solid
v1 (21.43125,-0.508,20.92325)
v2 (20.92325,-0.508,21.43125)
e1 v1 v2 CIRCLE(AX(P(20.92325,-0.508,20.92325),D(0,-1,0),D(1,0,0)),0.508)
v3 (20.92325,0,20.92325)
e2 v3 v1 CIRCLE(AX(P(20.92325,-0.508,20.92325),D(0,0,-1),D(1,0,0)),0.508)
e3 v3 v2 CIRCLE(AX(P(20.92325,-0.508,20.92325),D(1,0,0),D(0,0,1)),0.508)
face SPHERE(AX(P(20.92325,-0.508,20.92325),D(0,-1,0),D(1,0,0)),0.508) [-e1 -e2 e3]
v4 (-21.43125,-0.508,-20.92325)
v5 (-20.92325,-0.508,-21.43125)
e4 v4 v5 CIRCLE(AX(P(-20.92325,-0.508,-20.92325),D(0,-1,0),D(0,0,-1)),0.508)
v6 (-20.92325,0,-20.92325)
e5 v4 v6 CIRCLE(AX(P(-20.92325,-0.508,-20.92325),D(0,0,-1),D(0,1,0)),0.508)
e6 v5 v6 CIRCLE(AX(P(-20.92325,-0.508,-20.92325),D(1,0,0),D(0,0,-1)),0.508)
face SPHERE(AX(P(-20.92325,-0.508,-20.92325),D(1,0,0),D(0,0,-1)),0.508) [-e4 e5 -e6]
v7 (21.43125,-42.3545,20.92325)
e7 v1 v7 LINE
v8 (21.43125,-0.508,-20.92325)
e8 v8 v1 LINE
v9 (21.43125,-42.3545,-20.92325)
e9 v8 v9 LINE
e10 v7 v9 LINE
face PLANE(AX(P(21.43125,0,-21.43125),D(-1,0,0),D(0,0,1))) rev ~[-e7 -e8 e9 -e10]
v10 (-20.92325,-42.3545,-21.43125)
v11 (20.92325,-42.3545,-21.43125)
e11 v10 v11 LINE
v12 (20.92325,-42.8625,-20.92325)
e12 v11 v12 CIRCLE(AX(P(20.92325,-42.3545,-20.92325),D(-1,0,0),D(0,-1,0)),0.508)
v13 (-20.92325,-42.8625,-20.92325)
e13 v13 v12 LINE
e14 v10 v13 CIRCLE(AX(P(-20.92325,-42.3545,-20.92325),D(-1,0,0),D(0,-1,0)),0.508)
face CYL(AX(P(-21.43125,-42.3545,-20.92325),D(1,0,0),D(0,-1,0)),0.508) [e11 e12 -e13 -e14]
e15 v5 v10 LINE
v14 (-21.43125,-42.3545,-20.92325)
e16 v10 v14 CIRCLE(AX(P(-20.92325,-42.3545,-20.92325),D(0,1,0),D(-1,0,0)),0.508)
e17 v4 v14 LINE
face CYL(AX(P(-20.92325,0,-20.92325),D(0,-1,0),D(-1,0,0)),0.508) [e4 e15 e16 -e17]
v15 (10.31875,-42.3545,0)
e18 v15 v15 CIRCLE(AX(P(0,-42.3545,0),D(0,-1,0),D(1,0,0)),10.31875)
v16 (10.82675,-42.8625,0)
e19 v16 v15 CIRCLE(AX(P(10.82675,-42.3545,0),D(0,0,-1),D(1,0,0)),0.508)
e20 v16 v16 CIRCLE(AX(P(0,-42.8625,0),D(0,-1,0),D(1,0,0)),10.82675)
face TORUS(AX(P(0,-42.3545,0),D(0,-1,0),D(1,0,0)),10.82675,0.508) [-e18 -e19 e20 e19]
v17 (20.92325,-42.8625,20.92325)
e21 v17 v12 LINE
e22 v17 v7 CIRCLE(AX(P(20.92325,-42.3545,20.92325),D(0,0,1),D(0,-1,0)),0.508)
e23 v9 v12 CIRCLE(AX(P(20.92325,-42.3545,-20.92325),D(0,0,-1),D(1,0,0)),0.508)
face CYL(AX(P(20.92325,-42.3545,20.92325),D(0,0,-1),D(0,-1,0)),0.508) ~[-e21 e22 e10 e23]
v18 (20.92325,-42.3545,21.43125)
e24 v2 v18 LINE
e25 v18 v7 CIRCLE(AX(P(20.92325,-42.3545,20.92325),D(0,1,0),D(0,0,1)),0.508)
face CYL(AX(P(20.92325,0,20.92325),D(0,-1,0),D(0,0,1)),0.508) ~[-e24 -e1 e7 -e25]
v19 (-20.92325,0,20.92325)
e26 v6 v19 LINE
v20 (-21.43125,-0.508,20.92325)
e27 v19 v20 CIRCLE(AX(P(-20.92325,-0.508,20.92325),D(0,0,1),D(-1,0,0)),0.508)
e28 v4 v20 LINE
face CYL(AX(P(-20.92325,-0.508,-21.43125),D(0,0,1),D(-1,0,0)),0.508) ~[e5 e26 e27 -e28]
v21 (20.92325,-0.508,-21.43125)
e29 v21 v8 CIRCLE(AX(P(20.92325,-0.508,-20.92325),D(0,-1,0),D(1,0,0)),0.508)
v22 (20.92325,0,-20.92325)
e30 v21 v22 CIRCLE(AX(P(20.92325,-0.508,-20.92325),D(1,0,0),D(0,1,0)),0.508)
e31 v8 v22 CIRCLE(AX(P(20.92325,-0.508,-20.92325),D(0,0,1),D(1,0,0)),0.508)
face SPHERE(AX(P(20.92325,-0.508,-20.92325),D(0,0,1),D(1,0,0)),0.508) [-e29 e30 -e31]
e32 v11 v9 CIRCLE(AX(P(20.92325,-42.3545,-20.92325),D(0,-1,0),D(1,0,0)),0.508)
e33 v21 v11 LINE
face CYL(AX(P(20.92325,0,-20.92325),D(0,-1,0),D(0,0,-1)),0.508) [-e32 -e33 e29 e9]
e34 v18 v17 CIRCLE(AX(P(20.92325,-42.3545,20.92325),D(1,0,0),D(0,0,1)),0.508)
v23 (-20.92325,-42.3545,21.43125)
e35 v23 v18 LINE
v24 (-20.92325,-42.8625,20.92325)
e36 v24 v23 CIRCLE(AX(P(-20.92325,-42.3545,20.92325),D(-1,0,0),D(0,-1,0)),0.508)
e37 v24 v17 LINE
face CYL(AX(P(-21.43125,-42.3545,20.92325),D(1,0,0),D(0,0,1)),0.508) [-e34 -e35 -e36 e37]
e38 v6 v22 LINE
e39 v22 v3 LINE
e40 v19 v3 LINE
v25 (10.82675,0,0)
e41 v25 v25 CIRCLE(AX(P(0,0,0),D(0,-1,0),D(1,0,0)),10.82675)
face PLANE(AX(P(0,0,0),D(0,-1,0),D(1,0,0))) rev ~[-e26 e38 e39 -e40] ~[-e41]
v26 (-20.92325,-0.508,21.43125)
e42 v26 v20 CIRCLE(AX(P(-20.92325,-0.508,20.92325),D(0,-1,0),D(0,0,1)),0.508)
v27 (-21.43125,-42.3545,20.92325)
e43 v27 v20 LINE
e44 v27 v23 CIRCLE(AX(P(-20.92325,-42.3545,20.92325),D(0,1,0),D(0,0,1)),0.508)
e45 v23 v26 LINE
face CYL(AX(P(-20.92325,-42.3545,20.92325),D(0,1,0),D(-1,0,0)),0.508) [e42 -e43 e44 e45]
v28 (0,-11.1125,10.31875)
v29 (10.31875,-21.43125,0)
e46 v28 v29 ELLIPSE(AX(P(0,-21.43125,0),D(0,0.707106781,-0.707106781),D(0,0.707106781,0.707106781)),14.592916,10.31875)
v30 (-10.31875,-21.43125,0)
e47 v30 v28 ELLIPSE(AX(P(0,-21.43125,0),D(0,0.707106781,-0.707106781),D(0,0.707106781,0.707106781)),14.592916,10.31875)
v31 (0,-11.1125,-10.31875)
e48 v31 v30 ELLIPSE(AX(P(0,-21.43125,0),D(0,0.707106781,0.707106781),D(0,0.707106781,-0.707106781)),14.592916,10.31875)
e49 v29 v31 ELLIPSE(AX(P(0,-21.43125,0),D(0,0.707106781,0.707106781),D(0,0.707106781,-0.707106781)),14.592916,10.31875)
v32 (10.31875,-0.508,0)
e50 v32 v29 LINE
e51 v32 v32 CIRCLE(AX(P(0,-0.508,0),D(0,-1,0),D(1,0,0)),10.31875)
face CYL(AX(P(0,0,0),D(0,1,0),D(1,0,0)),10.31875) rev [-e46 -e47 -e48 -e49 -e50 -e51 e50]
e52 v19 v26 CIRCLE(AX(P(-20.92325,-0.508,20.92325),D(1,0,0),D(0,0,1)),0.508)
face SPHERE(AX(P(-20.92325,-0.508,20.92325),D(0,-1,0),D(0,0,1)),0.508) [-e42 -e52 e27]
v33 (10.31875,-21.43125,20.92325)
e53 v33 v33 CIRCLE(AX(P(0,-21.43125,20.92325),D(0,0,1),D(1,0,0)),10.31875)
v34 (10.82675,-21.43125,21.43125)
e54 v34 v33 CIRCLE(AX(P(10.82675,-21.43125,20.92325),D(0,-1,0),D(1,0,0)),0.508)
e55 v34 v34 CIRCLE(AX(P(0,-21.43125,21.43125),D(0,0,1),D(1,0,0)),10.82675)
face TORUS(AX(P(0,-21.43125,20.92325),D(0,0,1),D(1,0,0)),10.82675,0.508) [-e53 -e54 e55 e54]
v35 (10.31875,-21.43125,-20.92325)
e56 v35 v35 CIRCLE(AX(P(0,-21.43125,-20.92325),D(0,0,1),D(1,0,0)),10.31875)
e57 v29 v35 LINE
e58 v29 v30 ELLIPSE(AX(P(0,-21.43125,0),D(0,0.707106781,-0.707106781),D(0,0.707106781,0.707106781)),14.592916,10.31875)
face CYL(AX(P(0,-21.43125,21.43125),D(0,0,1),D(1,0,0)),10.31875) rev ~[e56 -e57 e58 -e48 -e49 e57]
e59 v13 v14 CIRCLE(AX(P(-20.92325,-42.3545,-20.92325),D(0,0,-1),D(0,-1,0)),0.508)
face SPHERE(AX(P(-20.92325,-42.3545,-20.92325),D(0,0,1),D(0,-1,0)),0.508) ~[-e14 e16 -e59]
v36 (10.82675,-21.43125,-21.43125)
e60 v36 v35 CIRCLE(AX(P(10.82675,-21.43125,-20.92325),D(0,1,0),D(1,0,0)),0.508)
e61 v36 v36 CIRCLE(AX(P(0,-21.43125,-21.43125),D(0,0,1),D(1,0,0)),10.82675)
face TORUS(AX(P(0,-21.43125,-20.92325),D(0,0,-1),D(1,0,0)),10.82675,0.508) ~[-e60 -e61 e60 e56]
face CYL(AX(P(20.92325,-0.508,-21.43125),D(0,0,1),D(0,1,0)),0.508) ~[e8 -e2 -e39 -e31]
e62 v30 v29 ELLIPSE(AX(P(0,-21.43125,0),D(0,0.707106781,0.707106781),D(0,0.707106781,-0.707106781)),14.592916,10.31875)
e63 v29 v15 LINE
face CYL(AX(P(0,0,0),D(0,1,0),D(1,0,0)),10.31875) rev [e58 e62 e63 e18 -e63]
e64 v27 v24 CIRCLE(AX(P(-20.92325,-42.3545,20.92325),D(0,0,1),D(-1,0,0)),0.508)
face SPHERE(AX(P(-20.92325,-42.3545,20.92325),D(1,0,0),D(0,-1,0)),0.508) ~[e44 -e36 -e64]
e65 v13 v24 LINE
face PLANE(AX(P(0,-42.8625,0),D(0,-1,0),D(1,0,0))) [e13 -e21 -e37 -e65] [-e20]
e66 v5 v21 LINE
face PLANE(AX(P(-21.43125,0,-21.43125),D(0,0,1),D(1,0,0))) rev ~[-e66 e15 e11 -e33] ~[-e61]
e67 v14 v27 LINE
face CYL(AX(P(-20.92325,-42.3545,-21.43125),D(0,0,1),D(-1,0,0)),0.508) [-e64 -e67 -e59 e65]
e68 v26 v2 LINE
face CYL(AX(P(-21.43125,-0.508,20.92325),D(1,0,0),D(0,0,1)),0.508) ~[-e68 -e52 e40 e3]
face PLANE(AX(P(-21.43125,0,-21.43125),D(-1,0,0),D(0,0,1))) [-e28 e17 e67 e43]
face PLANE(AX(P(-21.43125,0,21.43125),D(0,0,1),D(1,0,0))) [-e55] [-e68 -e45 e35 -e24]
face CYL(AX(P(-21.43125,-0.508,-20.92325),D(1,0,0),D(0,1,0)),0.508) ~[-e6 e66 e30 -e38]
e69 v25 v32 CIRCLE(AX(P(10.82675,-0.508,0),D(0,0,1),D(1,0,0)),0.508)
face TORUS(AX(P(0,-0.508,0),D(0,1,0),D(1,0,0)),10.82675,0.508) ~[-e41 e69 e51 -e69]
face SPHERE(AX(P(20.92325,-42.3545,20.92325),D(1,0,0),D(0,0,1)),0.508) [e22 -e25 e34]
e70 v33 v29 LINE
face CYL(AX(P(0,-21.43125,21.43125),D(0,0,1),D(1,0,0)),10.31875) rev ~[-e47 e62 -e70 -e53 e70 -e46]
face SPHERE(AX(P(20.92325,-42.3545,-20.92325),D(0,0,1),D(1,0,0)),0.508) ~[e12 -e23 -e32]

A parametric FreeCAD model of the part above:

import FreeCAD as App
import Part
import Sketcher
from FreeCAD import Vector
Q = App.Units.Quantity


def edges_at(feature, points):
    """Names of the edges that pass closest to the given points."""
    edges = feature.Shape.Edges
    near = lambda p: min(range(len(edges)), key=lambda i: edges[i].distToShape(Part.Vertex(*p))[0])
    return sorted({f"Edge{near(p) + 1}" for p in points})

doc = App.newDocument("Part")
body = doc.addObject("PartDesign::Body", "Body")

# Sketch on XZ plane
sketch1 = body.newObject("Sketcher::SketchObject", "Sketch")
sketch1.AttachmentSupport = (doc.getObject("XZ_Plane"), [""])
sketch1.MapMode = "FlatFace"
sketch1.addGeometry([
    Part.LineSegment(Vector(-21, 21, 0), Vector(-21, -21, 0)),  # 0
    Part.LineSegment(Vector(-21, -21, 0), Vector(21, -21, 0)),  # 1
    Part.LineSegment(Vector(21, -21, 0), Vector(21, 21, 0)),  # 2
    Part.LineSegment(Vector(21, 21, 0), Vector(-21, 21, 0)),  # 3
    Part.Circle(Vector(0, 0, 0), Vector(0, 0, 1), 10),  # 4
], False)
sketch1.addConstraint([
    Sketcher.Constraint("Coincident", 0, 2, 1, 1),
    Sketcher.Constraint("Coincident", 1, 2, 2, 1),
    Sketcher.Constraint("Coincident", 2, 2, 3, 1),
    Sketcher.Constraint("Coincident", 3, 2, 0, 1),
    Sketcher.Constraint("Vertical", 0),
    Sketcher.Constraint("Horizontal", 1),
    Sketcher.Constraint("Vertical", 2),
    Sketcher.Constraint("Horizontal", 3),
    Sketcher.Constraint("Coincident", 4, 3, -1, 1),
    Sketcher.Constraint("Symmetric", 0, 2, 2, 2, -1, 1),
    Sketcher.Constraint("Equal", 3, 0),
    Sketcher.Constraint("Diameter", 4, Q("0.8125 in")),
    Sketcher.Constraint("DistanceX", 1, 1, 1, 2, Q("1.6875 in")),
])
pad1 = body.newObject("PartDesign::Pad", "Pad")
pad1.Profile = sketch1
pad1.Length = Q("1.6875 in")

# Sketch on XY plane
sketch2 = body.newObject("Sketcher::SketchObject", "Sketch001")
sketch2.AttachmentSupport = (doc.getObject("XY_Plane"), [""])
sketch2.MapMode = "FlatFace"
sketch2.AttachmentOffset = App.Placement(Vector(0, 0, 0.84375 * 25.4), App.Rotation())
sketch2.addGeometry(Part.Circle(Vector(0, -21, 0), Vector(0, 0, 1), 10), False)
sketch2.addConstraint([
    Sketcher.Constraint("PointOnObject", 0, 3, -2),
    Sketcher.Constraint("Diameter", 0, Q("0.8125 in")),
    Sketcher.Constraint("DistanceY", 0, 3, -1, 1, Q("0.84375 in")),
])
pocket1 = body.newObject("PartDesign::Pocket", "Pocket")
pocket1.Profile = sketch2
pocket1.Type = "ThroughAll"
doc.recompute()

fillet = body.newObject("PartDesign::Fillet", "Fillet")
fillet.Base = (pocket1, edges_at(pocket1, [(0, -42.862, 21.431)]))
fillet.Radius = Q("0.02 in")
doc.recompute()

fillet2 = body.newObject("PartDesign::Fillet", "Fillet001")
fillet2.Base = (fillet, edges_at(fillet, [
    (21.431, -21.177, 21.431),
    (21.431, 0, 0),
    (21.431, -21.431, -21.431),
    (-21.431, -42.862, -0.254),
    (0, -42.862, -21.431),
    (0, 0, -21.431),
    (-21.431, -21.431, -21.431),
    (0, 0, 21.431),
    (21.431, -42.862, -0.254),
    (0, -42.862, 20.923),
    (-21.431, 0, 0),
    (-21.431, -21.177, 21.431),
]))
fillet2.Radius = Q("0.02 in")
doc.recompute()

fillet3 = body.newObject("PartDesign::Fillet", "Fillet002")
fillet3.Base = (fillet2, edges_at(fillet2, [
    (-10.319, -42.862, 0),
    (-10.319, -21.431, -21.431),
    (-10.319, -21.431, 21.431),
    (-10.319, 0, 0),
]))
fillet3.Radius = Q("0.02 in")

doc.recompute()
